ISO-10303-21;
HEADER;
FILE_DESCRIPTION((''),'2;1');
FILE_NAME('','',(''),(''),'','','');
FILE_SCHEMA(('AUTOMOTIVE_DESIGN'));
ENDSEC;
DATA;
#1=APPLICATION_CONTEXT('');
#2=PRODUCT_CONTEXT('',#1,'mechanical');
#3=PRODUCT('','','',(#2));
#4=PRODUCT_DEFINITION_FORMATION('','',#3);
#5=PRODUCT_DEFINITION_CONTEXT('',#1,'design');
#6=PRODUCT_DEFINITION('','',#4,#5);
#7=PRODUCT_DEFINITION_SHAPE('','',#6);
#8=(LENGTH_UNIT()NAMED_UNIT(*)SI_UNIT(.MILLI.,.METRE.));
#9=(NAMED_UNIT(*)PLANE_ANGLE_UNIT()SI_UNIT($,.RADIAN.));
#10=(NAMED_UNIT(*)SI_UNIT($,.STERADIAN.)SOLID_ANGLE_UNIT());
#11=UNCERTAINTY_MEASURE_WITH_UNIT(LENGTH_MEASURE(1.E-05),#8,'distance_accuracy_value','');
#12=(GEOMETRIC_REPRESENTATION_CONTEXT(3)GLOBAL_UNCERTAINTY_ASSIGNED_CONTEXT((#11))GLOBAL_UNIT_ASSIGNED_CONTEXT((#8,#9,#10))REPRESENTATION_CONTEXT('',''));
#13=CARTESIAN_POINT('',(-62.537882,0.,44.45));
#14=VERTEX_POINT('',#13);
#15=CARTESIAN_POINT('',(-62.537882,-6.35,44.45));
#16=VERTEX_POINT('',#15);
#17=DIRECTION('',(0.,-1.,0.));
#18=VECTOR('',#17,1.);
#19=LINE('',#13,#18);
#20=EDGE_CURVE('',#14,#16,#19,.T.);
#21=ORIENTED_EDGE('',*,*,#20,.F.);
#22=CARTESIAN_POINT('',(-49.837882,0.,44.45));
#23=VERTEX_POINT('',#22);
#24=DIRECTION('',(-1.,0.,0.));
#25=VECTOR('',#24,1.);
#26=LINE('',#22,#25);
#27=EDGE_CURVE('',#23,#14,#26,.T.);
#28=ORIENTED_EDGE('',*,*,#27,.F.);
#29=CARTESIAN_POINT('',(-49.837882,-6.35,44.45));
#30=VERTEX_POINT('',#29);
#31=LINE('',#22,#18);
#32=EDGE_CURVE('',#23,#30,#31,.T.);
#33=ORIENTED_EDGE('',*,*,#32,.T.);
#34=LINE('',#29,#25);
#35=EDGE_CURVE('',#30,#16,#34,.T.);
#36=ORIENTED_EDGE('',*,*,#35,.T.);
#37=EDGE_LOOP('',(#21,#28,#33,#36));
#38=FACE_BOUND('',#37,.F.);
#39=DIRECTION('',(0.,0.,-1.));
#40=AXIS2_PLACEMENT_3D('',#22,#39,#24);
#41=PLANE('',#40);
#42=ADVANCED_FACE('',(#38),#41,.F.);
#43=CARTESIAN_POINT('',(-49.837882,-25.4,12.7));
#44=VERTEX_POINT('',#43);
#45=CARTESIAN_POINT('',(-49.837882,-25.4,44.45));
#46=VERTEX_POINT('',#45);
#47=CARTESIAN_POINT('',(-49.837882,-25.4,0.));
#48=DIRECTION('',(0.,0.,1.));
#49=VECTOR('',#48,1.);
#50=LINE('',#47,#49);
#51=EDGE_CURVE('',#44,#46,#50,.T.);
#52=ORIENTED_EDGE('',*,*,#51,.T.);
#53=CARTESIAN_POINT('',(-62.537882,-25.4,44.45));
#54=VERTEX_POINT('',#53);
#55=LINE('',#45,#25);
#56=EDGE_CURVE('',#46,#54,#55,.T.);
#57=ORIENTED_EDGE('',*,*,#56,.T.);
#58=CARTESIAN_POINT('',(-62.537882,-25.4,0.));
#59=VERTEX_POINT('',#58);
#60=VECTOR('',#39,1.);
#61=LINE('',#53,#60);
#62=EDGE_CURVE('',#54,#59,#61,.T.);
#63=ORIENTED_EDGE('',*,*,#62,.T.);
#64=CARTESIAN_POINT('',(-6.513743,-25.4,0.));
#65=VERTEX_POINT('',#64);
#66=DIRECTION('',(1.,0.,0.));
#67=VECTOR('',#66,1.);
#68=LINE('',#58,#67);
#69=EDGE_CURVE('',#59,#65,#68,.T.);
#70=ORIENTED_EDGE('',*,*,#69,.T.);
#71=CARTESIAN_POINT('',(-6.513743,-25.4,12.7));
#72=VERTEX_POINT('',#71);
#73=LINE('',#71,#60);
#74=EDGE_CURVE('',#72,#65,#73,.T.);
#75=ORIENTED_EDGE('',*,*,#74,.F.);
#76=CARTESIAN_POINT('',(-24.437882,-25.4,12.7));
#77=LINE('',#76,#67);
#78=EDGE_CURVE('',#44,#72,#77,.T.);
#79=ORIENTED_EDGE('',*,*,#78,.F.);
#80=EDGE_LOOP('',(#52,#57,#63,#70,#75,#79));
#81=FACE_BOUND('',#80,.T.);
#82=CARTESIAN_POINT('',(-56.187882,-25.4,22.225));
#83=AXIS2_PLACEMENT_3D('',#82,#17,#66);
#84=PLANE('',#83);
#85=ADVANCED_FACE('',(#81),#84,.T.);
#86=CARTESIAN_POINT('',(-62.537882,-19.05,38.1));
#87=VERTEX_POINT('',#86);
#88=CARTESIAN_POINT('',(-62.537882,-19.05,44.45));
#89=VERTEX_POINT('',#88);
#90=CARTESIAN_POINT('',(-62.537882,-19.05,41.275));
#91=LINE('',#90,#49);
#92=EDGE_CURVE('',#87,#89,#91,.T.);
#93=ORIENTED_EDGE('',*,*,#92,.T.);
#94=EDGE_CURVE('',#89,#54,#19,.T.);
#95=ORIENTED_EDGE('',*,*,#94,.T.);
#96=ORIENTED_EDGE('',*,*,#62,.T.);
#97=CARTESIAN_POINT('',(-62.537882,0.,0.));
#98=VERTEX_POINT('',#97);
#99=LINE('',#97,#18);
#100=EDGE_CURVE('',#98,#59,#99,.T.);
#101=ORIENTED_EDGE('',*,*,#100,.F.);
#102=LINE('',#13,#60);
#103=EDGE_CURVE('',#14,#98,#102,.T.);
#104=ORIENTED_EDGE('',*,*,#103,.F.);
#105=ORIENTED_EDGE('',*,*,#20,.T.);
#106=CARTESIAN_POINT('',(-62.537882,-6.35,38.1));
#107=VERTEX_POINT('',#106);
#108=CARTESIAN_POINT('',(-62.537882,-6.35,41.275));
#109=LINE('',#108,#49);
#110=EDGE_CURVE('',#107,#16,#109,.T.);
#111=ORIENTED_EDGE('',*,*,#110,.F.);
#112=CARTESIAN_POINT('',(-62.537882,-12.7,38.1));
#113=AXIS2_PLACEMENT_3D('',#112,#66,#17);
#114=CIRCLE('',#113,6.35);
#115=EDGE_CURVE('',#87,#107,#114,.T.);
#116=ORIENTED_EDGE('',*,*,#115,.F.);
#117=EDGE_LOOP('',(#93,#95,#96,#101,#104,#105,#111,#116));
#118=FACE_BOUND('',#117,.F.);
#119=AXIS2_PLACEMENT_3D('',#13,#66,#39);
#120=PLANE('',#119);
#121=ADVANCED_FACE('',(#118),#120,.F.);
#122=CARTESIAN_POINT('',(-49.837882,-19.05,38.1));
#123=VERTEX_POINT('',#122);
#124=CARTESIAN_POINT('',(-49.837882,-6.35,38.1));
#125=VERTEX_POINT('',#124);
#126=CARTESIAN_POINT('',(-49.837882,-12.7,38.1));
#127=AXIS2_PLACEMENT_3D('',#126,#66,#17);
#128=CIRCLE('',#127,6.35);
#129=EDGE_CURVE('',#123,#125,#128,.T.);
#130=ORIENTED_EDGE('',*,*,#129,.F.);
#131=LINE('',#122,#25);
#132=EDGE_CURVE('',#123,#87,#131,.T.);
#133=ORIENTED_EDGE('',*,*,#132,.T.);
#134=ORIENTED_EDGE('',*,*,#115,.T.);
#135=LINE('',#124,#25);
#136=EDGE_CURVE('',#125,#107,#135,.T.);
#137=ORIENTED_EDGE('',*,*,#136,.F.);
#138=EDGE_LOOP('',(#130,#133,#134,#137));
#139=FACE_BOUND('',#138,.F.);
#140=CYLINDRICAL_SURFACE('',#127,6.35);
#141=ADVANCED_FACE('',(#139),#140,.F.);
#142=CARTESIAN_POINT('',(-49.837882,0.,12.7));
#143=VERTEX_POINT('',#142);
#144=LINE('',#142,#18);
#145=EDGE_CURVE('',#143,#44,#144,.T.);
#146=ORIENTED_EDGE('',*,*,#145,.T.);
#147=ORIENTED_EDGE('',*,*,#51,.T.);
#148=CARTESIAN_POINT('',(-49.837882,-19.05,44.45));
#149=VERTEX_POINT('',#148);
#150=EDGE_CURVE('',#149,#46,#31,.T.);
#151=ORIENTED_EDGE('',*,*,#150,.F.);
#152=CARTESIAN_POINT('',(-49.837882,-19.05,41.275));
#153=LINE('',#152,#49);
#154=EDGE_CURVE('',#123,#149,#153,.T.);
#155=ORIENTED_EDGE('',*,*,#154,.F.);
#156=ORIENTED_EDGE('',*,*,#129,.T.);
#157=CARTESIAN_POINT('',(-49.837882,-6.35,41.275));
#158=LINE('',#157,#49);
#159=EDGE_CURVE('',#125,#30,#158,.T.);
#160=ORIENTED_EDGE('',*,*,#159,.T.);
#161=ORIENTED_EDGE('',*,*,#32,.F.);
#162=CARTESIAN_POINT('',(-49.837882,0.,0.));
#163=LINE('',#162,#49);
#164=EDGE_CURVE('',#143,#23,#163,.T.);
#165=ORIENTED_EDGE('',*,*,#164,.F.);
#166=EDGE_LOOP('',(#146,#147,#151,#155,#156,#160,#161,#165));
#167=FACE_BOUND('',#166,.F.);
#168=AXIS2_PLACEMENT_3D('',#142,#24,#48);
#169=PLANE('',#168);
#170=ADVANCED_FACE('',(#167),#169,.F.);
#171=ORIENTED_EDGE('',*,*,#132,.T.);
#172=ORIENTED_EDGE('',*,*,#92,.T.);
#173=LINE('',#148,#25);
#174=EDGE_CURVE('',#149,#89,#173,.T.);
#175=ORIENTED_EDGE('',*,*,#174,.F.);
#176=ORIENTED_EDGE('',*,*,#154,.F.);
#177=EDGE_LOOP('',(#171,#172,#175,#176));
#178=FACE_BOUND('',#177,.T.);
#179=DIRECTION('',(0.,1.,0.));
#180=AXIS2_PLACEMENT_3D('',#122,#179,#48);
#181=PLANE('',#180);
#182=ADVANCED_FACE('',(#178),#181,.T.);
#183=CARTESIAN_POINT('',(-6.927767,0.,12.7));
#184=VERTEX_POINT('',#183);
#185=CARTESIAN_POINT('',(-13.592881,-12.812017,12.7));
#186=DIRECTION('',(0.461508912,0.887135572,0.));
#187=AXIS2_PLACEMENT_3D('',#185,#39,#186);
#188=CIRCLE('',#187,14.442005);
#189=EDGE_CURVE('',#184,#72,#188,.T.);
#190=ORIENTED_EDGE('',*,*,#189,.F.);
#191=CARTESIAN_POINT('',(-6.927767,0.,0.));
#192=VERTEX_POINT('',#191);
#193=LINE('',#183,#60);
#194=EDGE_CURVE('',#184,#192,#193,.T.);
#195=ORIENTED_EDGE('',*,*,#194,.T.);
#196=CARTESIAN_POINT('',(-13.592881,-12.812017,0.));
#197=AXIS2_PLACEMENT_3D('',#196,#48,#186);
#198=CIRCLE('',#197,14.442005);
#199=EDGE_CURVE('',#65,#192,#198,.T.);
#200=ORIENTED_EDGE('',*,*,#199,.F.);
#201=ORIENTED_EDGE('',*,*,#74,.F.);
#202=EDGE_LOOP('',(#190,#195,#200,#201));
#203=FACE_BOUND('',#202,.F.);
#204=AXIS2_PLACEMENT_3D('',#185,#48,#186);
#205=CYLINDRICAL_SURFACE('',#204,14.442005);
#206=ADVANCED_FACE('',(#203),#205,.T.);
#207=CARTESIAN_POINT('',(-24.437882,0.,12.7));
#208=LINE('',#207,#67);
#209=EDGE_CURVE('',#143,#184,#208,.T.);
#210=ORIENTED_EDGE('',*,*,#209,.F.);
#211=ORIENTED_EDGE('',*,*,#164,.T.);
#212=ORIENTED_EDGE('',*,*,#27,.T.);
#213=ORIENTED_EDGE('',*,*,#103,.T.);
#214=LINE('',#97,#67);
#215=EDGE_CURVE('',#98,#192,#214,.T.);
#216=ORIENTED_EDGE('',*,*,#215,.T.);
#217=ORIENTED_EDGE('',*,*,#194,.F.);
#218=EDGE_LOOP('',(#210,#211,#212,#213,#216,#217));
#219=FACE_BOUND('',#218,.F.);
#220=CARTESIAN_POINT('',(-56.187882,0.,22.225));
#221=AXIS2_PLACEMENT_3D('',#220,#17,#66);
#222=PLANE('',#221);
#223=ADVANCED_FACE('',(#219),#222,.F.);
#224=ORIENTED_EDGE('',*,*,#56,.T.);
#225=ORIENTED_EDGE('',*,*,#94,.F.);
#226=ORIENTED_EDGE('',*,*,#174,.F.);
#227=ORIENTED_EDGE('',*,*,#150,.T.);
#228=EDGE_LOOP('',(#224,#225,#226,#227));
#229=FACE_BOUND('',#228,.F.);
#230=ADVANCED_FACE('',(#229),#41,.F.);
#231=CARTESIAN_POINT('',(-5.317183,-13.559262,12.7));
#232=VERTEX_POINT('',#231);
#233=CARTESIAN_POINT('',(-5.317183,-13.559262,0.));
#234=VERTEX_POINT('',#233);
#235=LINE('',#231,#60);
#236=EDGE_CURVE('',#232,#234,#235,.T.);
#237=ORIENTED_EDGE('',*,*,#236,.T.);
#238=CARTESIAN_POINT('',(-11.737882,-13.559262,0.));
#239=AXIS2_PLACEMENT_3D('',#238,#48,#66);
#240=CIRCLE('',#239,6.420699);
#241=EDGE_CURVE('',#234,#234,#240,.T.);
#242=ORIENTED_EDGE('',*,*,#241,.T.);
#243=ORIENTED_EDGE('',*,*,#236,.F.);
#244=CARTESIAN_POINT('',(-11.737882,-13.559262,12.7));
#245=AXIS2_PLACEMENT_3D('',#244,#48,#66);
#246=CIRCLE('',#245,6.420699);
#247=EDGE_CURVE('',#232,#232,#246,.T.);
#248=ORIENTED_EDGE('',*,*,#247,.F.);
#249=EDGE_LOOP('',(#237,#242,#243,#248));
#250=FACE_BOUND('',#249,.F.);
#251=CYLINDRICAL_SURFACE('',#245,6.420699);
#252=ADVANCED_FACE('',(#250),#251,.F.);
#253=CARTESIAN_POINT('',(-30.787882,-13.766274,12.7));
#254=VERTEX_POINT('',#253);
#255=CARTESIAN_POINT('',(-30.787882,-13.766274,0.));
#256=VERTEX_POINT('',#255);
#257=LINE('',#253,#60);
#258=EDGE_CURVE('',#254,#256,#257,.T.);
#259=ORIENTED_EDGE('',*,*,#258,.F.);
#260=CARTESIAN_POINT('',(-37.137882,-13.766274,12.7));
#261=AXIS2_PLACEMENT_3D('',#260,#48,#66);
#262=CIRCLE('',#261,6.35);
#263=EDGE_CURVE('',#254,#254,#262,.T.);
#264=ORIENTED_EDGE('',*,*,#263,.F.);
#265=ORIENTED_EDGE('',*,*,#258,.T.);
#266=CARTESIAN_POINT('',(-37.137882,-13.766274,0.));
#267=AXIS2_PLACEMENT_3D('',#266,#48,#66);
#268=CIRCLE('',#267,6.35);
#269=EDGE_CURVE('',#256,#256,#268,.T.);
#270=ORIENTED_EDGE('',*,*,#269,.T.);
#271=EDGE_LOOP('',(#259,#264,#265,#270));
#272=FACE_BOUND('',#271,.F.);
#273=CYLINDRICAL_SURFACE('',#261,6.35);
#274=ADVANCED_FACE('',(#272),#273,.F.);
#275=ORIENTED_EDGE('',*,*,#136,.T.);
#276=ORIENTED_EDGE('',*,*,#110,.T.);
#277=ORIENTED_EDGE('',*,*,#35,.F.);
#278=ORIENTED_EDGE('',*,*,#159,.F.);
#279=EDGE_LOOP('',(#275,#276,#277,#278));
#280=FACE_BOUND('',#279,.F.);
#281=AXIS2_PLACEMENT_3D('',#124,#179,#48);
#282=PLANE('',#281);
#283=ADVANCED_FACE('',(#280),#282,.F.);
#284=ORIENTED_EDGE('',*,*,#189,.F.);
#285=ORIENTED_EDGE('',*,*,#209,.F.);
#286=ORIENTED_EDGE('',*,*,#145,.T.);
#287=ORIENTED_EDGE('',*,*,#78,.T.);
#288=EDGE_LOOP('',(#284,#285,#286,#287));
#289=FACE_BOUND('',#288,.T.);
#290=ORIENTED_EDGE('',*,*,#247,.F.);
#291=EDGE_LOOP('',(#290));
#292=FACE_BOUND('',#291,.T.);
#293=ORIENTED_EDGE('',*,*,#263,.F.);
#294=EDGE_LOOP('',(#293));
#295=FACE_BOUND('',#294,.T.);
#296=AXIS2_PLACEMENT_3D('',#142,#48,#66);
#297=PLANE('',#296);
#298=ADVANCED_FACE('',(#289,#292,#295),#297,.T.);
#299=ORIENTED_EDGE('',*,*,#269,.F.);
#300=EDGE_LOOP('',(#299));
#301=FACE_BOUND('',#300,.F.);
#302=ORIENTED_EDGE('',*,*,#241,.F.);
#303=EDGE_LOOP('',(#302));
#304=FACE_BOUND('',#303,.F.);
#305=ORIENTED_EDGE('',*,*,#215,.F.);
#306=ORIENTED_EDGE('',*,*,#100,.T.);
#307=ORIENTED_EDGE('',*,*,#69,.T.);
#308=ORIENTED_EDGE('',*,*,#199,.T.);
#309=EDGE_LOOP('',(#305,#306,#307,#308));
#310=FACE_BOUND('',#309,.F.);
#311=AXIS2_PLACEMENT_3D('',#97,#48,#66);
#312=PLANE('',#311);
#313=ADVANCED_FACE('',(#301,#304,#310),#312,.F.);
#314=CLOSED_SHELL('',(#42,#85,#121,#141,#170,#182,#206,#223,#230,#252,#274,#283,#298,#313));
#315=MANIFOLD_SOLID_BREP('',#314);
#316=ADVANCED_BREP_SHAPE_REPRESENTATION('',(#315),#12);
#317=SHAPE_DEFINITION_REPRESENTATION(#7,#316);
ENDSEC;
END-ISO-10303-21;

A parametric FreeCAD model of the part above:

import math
import FreeCAD as App
import Part
import Sketcher

V = App.Vector
Q = App.Units.Quantity

doc = App.newDocument("Part")
body = doc.addObject("PartDesign::Body", "Body")

# Sketch on XZ plane
sketch1 = doc.addObject("Sketcher::SketchObject", "Sketch")
body.addObject(sketch1)
sketch1.AttachmentSupport = (doc.XZ_Plane, [""])
sketch1.MapMode = "FlatFace"
sketch1.addGeometry([
    Part.LineSegment(V(-63, 44, 0), V(-63, 0, 0)),  # 0
    Part.LineSegment(V(-63, 0, 0), V(1, 0, 0)),  # 1
    Part.LineSegment(V(1, 0, 0), V(1, 13, 0)),  # 2
    Part.LineSegment(V(1, 13, 0), V(-50, 13, 0)),  # 3
    Part.LineSegment(V(-50, 13, 0), V(-50, 44, 0)),  # 4
    Part.LineSegment(V(-50, 44, 0), V(-63, 44, 0)),  # 5
], False)
sketch1.addConstraint([
    Sketcher.Constraint("Coincident", 0, 2, 1, 1),
    Sketcher.Constraint("Coincident", 1, 2, 2, 1),
    Sketcher.Constraint("Coincident", 2, 2, 3, 1),
    Sketcher.Constraint("Coincident", 3, 2, 4, 1),
    Sketcher.Constraint("Coincident", 4, 2, 5, 1),
    Sketcher.Constraint("Coincident", 5, 2, 0, 1),
    Sketcher.Constraint("Vertical", 0),
    Sketcher.Constraint("Horizontal", 1),
    Sketcher.Constraint("Vertical", 2),
    Sketcher.Constraint("Horizontal", 3),
    Sketcher.Constraint("Vertical", 4),
    Sketcher.Constraint("Horizontal", 5),
    Sketcher.Constraint("PointOnObject", 0, 2, -1),
    Sketcher.Constraint("Equal", 5, 2),
    Sketcher.Constraint("DistanceX", 3, 2, 3, 1, Q("2 in")),
    Sketcher.Constraint("DistanceX", 1, 1, 1, 2, Q("2.5 in")),
    Sketcher.Constraint("DistanceY", 0, 2, 0, 1, Q("1.75 in")),
    Sketcher.Constraint("DistanceX", -1, 1, 1, 2, Q("0.962118 mm")),
])
pad1 = doc.addObject("PartDesign::Pad", "Pad")
body.addObject(pad1)
pad1.Profile = sketch1
pad1.Length = Q("1 in")

# Sketch on YZ plane
sketch2 = doc.addObject("Sketcher::SketchObject", "Sketch001")
body.addObject(sketch2)
sketch2.AttachmentSupport = (doc.YZ_Plane, [""])
sketch2.MapMode = "FlatFace"
sketch2.AttachmentOffset = App.Placement(V(0, 0, -49.837882), App.Rotation())
sketch2.addGeometry([
    Part.LineSegment(V(-19, 44, 0), V(-19, 38, 0)),
    Part.ArcOfCircle(Part.Circle(V(-13, 38, 0), V(0, 0, 1), 6), math.radians(180), math.radians(360)),
    Part.LineSegment(V(-6, 38, 0), V(-6, 44, 0)),
    Part.LineSegment(V(-6, 44, 0), V(-19, 44, 0)),
], False)
sketch2.addConstraint([
    Sketcher.Constraint("Tangent", 0, 2, 1, 1),
    Sketcher.Constraint("Tangent", 1, 2, 2, 1),
    Sketcher.Constraint("Coincident", 2, 2, 3, 1),
    Sketcher.Constraint("Coincident", 3, 2, 0, 1),
    Sketcher.Constraint("Vertical", 0),
    Sketcher.Constraint("Vertical", 2),
    Sketcher.Constraint("Horizontal", 3),
    Sketcher.Constraint("Radius", 1, Q("0.25 in")),
    Sketcher.Constraint("DistanceY", 0, 2, 0, 1, Q("0.25 in")),
    Sketcher.Constraint("DistanceX", 1, 3, -1, 1, Q("0.5 in")),
    Sketcher.Constraint("DistanceY", -1, 1, 1, 3, Q("1.5 in")),
])
pocket1 = doc.addObject("PartDesign::Pocket", "Pocket")
body.addObject(pocket1)
pocket1.Profile = sketch2
pocket1.Length = Q("1 in")

# Sketch on XY plane
sketch3 = doc.addObject("Sketcher::SketchObject", "Sketch002")
body.addObject(sketch3)
sketch3.AttachmentSupport = (doc.XY_Plane, [""])
sketch3.MapMode = "FlatFace"
sketch3.AttachmentOffset = App.Placement(V(0, 0, 0.5 * 25.4), App.Rotation())
sketch3.addGeometry([
    Part.Circle(V(-37, -14, 0), V(0, 0, 1), 6),  # 0
    Part.Circle(V(-12, -14, 0), V(0, 0, 1), 6),  # 1
    Part.ArcOfCircle(Part.Circle(V(-14, -13, 0), V(0, 0, 1), 14), math.radians(-61), math.radians(63)),  # 2
    Part.LineSegment(V(-7, -25, 0), V(1, -25, 0)),  # 3
    Part.LineSegment(V(1, -25, 0), V(1, 0, 0)),  # 4
    Part.LineSegment(V(1, 0, 0), V(-7, 0, 0)),  # 5
], False)
sketch3.addConstraint([
    Sketcher.Constraint("Coincident", 2, 1, 3, 1),
    Sketcher.Constraint("Coincident", 3, 2, 4, 1),
    Sketcher.Constraint("Coincident", 4, 2, 5, 1),
    Sketcher.Constraint("Coincident", 5, 2, 2, 2),
    Sketcher.Constraint("Horizontal", 3),
    Sketcher.Constraint("Vertical", 4),
    Sketcher.Constraint("Horizontal", 5),
    Sketcher.Constraint("PointOnObject", 4, 2, -1),
    Sketcher.Constraint("Diameter", 0, Q("0.5 in")),
    Sketcher.Constraint("DistanceY", 4, 1, 4, 2, Q("1 in")),
    Sketcher.Constraint("DistanceX", 0, 3, 1, 3, Q("1 in")),
    Sketcher.Constraint("DistanceX", 1, 3, 3, 2, Q("0.5 in")),
    Sketcher.Constraint("Diameter", 1, Q("12.841398 mm")),
    Sketcher.Constraint("Radius", 2, Q("14.442005 mm")),
    Sketcher.Constraint("DistanceX", 5, 2, 2, 1, Q("0.0163002 in")),
    Sketcher.Constraint("DistanceX", 3, 1, 3, 2, Q("7.475861 mm")),
    Sketcher.Constraint("DistanceX", 0, 3, -1, 1, Q("37.137882 mm")),
    Sketcher.Constraint("DistanceY", 0, 3, 1, 3, Q("0.207012 mm")),
    Sketcher.Constraint("DistanceY", 0, 3, -1, 1, Q("13.766274 mm")),
])
pocket2 = doc.addObject("PartDesign::Pocket", "Pocket001")
body.addObject(pocket2)
pocket2.Profile = sketch3
pocket2.Length = Q("1 in")

doc.recompute()
